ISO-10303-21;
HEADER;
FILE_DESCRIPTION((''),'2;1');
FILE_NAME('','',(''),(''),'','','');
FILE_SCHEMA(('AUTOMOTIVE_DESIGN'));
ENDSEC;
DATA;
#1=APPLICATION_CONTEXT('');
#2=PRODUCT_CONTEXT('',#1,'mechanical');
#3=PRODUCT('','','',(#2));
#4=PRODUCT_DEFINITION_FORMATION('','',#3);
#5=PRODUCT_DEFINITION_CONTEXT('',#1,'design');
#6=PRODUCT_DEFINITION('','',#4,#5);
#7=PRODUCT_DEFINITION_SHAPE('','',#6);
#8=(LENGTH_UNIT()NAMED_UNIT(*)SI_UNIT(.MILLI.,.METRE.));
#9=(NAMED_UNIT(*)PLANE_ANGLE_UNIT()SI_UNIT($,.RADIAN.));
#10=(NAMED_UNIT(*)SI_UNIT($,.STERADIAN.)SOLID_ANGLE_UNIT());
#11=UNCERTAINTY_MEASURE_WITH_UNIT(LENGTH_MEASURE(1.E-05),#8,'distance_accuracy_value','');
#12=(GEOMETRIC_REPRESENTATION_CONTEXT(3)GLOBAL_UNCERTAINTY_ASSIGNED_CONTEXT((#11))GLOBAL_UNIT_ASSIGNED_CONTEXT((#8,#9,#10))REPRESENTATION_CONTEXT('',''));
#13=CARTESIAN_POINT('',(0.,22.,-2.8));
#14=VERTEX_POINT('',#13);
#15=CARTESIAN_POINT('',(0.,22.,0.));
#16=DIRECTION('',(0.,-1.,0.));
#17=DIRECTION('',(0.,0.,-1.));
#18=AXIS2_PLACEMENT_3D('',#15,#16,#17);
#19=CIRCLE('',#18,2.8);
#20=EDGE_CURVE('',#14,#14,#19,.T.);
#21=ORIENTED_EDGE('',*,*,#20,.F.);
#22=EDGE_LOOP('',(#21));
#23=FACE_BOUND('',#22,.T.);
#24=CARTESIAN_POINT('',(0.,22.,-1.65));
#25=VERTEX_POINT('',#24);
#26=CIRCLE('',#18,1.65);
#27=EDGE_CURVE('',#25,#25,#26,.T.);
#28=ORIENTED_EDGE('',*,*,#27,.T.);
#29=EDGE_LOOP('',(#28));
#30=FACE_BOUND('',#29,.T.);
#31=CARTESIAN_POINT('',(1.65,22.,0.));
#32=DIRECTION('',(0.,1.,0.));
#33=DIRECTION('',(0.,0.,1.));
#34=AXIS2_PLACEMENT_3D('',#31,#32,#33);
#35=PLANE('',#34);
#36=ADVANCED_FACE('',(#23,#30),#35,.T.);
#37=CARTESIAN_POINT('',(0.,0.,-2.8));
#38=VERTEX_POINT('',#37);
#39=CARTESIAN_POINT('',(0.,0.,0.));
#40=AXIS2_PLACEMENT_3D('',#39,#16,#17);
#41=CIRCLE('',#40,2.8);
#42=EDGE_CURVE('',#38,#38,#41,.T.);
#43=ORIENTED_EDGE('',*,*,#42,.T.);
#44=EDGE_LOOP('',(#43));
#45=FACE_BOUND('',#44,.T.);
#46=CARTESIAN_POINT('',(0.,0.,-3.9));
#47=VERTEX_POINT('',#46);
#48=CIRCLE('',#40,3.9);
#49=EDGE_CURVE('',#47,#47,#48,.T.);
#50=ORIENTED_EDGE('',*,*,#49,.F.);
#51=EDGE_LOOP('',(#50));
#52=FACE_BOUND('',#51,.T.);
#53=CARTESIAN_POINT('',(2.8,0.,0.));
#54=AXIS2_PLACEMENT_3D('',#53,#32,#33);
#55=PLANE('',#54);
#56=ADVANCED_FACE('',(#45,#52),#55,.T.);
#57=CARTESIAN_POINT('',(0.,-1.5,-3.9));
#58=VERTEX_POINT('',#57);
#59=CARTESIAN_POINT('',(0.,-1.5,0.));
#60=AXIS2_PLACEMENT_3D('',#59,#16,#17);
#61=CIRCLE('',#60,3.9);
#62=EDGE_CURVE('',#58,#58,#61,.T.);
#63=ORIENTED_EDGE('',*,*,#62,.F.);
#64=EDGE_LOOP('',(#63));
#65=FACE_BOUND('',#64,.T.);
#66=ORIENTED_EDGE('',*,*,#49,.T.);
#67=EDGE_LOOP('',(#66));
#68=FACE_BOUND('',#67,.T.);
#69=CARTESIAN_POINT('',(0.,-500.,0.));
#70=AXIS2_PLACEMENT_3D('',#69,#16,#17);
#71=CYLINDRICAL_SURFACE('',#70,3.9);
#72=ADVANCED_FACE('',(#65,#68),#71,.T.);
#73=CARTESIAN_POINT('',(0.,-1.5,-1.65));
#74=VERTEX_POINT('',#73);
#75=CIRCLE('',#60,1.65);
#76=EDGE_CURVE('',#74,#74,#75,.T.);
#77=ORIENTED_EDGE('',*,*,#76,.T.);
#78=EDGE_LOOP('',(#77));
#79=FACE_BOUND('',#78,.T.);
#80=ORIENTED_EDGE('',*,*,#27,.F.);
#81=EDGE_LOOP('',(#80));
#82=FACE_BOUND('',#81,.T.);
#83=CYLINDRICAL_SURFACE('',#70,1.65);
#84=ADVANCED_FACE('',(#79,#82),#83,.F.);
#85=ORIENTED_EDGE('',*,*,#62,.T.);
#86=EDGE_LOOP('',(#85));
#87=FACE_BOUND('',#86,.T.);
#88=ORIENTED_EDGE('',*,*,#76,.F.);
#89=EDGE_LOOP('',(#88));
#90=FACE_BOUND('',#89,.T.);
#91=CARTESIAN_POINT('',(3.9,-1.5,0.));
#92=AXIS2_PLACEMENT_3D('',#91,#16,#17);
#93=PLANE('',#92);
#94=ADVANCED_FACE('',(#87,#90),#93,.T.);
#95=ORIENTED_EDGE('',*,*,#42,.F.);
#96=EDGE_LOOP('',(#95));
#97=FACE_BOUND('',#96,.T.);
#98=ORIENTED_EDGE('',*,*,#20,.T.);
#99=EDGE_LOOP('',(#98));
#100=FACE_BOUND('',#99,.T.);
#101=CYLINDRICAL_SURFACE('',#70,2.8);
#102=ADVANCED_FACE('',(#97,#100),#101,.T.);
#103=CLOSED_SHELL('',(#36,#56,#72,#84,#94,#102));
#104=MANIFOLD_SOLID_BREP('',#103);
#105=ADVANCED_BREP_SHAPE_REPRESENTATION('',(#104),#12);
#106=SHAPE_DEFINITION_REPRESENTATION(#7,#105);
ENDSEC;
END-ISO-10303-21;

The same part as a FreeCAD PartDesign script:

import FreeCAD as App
import Part
import Sketcher
Q = App.Units.Quantity


def add_polygon(sketch, points):
    """Adds a closed chain of lines whose ends are joined by coincident constraints."""
    first, n = sketch.GeometryCount, len(points)
    for a, b in zip(points, points[1:] + points[:1]):
        sketch.addGeometry(Part.LineSegment(App.Vector(*a, 0), App.Vector(*b, 0)), False)
    for i in range(n):
        sketch.addConstraint(Sketcher.Constraint("Coincident", first + i, 2, first + (i + 1) % n, 1))

doc = App.newDocument("Part")
body = doc.addObject("PartDesign::Body", "Body")

# Sketch on XY plane
sketch1 = body.newObject("Sketcher::SketchObject", "Sketch")
sketch1.AttachmentSupport = (doc.getObject("XY_Plane"), [""])
sketch1.MapMode = "FlatFace"
add_polygon(sketch1, [(1.6, 22), (1.6, -1.5), (3.9, -1.5), (3.9, 0), (2.8, 0), (2.8, 22)])  # lines 0-5
sketch1.addConstraint([
    Sketcher.Constraint("Vertical", 0),
    Sketcher.Constraint("Horizontal", 1),
    Sketcher.Constraint("Vertical", 2),
    Sketcher.Constraint("Horizontal", 3),
    Sketcher.Constraint("Vertical", 4),
    Sketcher.Constraint("Horizontal", 5),
    Sketcher.Constraint("PointOnObject", 2, 2, -1),
    Sketcher.Constraint("DistanceY", 4, 1, 4, 2, Q("22 mm")),
    Sketcher.Constraint("DistanceX", 3, 2, 3, 1, Q("1.1 mm")),
    Sketcher.Constraint("DistanceY", 0, 2, 0, 1, Q("23.5 mm")),
    Sketcher.Constraint("DistanceX", 1, 1, 1, 2, Q("2.25 mm")),
    Sketcher.Constraint("DistanceX", -1, 1, 1, 2, Q("3.9 mm")),
])
revolution = body.newObject("PartDesign::Revolution", "Revolution")
revolution.Profile = sketch1
revolution.ReferenceAxis = (sketch1, ["V_Axis"])
revolution.Angle = 360

doc.recompute()
